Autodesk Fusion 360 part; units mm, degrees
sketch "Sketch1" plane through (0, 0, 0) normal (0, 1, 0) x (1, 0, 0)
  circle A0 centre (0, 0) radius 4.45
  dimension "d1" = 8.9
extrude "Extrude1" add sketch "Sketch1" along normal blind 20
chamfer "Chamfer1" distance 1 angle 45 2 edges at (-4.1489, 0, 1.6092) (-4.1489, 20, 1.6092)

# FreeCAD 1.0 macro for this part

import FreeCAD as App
import Part
import Sketcher

V = App.Vector
Q = App.Units.Quantity


def edges_at(feature, points):
    """Names of the edges that pass closest to the given points."""
    edges = feature.Shape.Edges
    near = lambda p: min(range(len(edges)), key=lambda i: edges[i].distToShape(Part.Vertex(*p))[0])
    return sorted({f"Edge{near(p) + 1}" for p in points})

doc = App.newDocument("Part")
body = doc.addObject("PartDesign::Body", "Body")

# Sketch on XZ plane
sketch1 = body.newObject("Sketcher::SketchObject", "Sketch")
sketch1.AttachmentSupport = (doc.getObject("XZ_Plane"), [""])
sketch1.MapMode = "FlatFace"
sketch1.addGeometry(Part.Circle(V(0, 0, 0), V(0, 0, 1), 4.5), False)
sketch1.addConstraint([
    Sketcher.Constraint("Coincident", 0, 3, -1, 1),
    Sketcher.Constraint("Diameter", 0, Q("8.9 mm")),
])
pad1 = body.newObject("PartDesign::Pad", "Pad")
pad1.Profile = sketch1
pad1.Length = 20
pad1.Reversed = True
doc.recompute()

chamfer = body.newObject("PartDesign::Chamfer", "Chamfer")
chamfer.Base = (pad1, edges_at(pad1, [(-4.149, 0, 1.609), (-4.149, 20, 1.609)]))
chamfer.Size = 1

doc.recompute()
